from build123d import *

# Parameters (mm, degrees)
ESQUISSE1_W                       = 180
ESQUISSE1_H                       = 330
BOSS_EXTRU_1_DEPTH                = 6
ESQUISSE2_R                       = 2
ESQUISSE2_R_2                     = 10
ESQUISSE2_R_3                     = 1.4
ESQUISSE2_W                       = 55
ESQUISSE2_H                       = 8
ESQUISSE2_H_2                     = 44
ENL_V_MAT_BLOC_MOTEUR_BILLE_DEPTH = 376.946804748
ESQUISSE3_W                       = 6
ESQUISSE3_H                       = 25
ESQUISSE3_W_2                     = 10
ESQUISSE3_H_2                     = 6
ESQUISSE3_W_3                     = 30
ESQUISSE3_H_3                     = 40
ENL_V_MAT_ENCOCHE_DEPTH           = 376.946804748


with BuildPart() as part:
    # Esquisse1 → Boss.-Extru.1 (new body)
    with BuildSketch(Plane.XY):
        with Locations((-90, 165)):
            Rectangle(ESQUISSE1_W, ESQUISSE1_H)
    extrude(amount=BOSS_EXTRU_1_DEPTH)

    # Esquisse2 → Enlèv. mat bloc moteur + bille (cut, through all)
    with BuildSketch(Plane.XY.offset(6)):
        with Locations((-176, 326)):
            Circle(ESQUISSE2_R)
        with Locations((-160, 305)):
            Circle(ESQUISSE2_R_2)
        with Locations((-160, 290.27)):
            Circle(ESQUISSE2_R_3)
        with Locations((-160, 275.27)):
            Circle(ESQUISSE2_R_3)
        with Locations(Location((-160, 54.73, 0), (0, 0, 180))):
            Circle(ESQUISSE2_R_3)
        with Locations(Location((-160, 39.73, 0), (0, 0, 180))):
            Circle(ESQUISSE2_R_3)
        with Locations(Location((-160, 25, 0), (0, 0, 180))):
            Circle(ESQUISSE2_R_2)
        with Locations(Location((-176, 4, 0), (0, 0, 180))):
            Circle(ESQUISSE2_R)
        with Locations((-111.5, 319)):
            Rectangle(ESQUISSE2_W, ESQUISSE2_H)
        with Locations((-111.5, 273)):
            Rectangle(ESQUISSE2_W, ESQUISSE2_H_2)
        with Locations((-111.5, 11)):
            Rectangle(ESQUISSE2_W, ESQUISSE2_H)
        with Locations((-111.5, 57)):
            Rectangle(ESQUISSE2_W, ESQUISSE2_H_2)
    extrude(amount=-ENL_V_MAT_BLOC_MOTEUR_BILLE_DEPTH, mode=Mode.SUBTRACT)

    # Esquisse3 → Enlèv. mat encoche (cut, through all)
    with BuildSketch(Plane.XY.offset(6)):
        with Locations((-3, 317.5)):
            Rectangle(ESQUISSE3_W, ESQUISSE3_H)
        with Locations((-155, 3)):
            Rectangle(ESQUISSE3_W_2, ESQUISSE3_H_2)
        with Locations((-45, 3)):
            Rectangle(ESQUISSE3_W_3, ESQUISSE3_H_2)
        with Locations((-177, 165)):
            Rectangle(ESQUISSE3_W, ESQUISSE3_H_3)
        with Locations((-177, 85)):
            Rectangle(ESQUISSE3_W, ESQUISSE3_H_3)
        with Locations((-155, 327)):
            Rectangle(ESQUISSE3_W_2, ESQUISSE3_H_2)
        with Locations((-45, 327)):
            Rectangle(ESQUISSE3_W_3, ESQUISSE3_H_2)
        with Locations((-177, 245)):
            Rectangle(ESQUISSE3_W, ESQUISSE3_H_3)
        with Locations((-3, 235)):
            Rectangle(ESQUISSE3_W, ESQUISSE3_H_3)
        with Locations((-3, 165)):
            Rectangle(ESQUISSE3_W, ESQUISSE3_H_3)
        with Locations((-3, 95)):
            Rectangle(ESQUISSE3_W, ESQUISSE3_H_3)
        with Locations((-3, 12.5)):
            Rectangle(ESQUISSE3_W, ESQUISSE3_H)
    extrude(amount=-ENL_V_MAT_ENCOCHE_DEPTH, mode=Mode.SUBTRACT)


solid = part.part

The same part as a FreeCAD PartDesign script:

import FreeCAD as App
import Part
import Sketcher


def add_polygon(sketch, points):
    """Adds a closed chain of lines whose ends are joined by coincident constraints."""
    first, n = sketch.GeometryCount, len(points)
    for a, b in zip(points, points[1:] + points[:1]):
        sketch.addGeometry(Part.LineSegment(App.Vector(*a, 0), App.Vector(*b, 0)), False)
    for i in range(n):
        sketch.addConstraint(Sketcher.Constraint("Coincident", first + i, 2, first + (i + 1) % n, 1))

doc = App.newDocument("Part")
params = doc.addObject("Spreadsheet::Sheet", "Params")
for row, (alias, value) in enumerate([
    ("sketch1_width", "180 mm"),
    ("sketch1_height", "330 mm"),
    ("pad1_length", "6 mm"),
    ("sketch2_diameter", "4 mm"),
    ("sketch2_diameter2", "20 mm"),
    ("sketch2_diameter3", "2.8 mm"),
    ("sketch2_width", "55 mm"),
    ("sketch2_height", "8 mm"),
    ("sketch3_width", "6 mm"),
    ("sketch3_width2", "10 mm"),
    ("sketch3_width3", "30 mm"),
    ("sketch3_height", "25 mm"),
    ("sketch3_height2", "40 mm"),
], start=1):
    params.set(f"A{row}", alias)
    params.set(f"B{row}", "=" + value)
    params.setAlias(f"B{row}", alias)

body = doc.addObject("PartDesign::Body", "Body")

# Sketch on XY plane
sketch1 = body.newObject("Sketcher::SketchObject", "Sketch")
sketch1.AttachmentSupport = (doc.getObject("XY_Plane"), [""])
sketch1.MapMode = "FlatFace"
add_polygon(sketch1, [(-180, 330), (-180, 0), (0, 0), (0, 330)])  # lines 0-3
sketch1.addConstraint([
    Sketcher.Constraint("Vertical", 0),
    Sketcher.Constraint("Horizontal", 1),
    Sketcher.Constraint("Vertical", 2),
    Sketcher.Constraint("Horizontal", 3),
    Sketcher.Constraint("Coincident", 1, 2, -1, 1),
    Sketcher.Constraint("DistanceX", 1, 1, 1, 2, 180.0),
    Sketcher.Constraint("DistanceY", 0, 2, 0, 1, 330.0),
])
sketch1.setExpression("Constraints[9]", "Params.sketch1_width")
sketch1.setExpression("Constraints[10]", "Params.sketch1_height")
pad1 = body.newObject("PartDesign::Pad", "Pad")
pad1.Profile = sketch1
pad1.setExpression("Length", "Params.pad1_length")

# Sketch on XY plane
sketch2 = body.newObject("Sketcher::SketchObject", "Sketch001")
sketch2.AttachmentSupport = (doc.getObject("XY_Plane"), [""])
sketch2.MapMode = "FlatFace"
sketch2.AttachmentOffset = App.Placement(App.Vector(0, 0, 6), App.Rotation())
sketch2.addGeometry(Part.Circle(App.Vector(-176, 326, 0), App.Vector(0, 0, 1), 2), False)  # 0
sketch2.addGeometry(Part.Circle(App.Vector(-160, 305, 0), App.Vector(0, 0, 1), 10), False)  # 1
sketch2.addGeometry(Part.Circle(App.Vector(-160, 290.27, 0), App.Vector(0, 0, 1), 1.4), False)  # 2
sketch2.addGeometry(Part.Circle(App.Vector(-160, 275.27, 0), App.Vector(0, 0, 1), 1.4), False)  # 3
sketch2.addGeometry(Part.Circle(App.Vector(-160, 54.73, 0), App.Vector(0, 0, 1), 1.4), False)  # 4
sketch2.addGeometry(Part.Circle(App.Vector(-160, 39.73, 0), App.Vector(0, 0, 1), 1.4), False)  # 5
sketch2.addGeometry(Part.Circle(App.Vector(-160, 25, 0), App.Vector(0, 0, 1), 10), False)  # 6
sketch2.addGeometry(Part.Circle(App.Vector(-176, 4, 0), App.Vector(0, 0, 1), 2), False)  # 7
add_polygon(sketch2, [(-139, 323), (-139, 315), (-84, 315), (-84, 323)])  # lines 8-11
add_polygon(sketch2, [(-139, 295), (-139, 251), (-84, 251), (-84, 295)])  # lines 12-15
add_polygon(sketch2, [(-139, 15), (-139, 7), (-84, 7), (-84, 15)])  # lines 16-19
add_polygon(sketch2, [(-139, 79), (-139, 35), (-84, 35), (-84, 79)])  # lines 20-23
sketch2.addConstraint([
    Sketcher.Constraint("Vertical", 8),
    Sketcher.Constraint("Horizontal", 9),
    Sketcher.Constraint("Vertical", 10),
    Sketcher.Constraint("Horizontal", 11),
    Sketcher.Constraint("Vertical", 12),
    Sketcher.Constraint("Horizontal", 13),
    Sketcher.Constraint("Vertical", 14),
    Sketcher.Constraint("Horizontal", 15),
    Sketcher.Constraint("Vertical", 16),
    Sketcher.Constraint("Horizontal", 17),
    Sketcher.Constraint("Vertical", 18),
    Sketcher.Constraint("Horizontal", 19),
    Sketcher.Constraint("Vertical", 20),
    Sketcher.Constraint("Horizontal", 21),
    Sketcher.Constraint("Vertical", 22),
    Sketcher.Constraint("Horizontal", 23),
    Sketcher.Constraint("Equal", 2, 3),
    Sketcher.Constraint("Equal", 3, 4),
    Sketcher.Constraint("Equal", 4, 5),
    Sketcher.Constraint("Equal", 1, 6),
    Sketcher.Constraint("Equal", 0, 7),
    Sketcher.Constraint("Vertical", 1, 3, 2, 3),
    Sketcher.Constraint("Vertical", 2, 3, 3, 3),
    Sketcher.Constraint("Vertical", 3, 3, 4, 3),
    Sketcher.Constraint("Vertical", 4, 3, 5, 3),
    Sketcher.Constraint("Vertical", 5, 3, 6, 3),
    Sketcher.Constraint("Vertical", 0, 3, 7, 3),
    Sketcher.Constraint("Vertical", 11, 2, 12, 2),
    Sketcher.Constraint("Vertical", 10, 2, 13, 2),
    Sketcher.Constraint("Vertical", 15, 2, 16, 2),
    Sketcher.Constraint("Vertical", 14, 2, 17, 2),
    Sketcher.Constraint("Vertical", 19, 2, 20, 2),
    Sketcher.Constraint("Vertical", 18, 2, 21, 2),
    Sketcher.Constraint("Equal", 10, 16),
    Sketcher.Constraint("Equal", 14, 20),
    Sketcher.Constraint("Diameter", 0, 4.0),
    Sketcher.Constraint("Diameter", 1, 20.0),
    Sketcher.Constraint("Diameter", 2, 2.8),
    Sketcher.Constraint("DistanceX", 9, 1, 9, 2, 55.0),
    Sketcher.Constraint("DistanceY", 8, 2, 8, 1, 8.0),
    Sketcher.Constraint("DistanceY", 12, 2, 12, 1, 44.0),
    Sketcher.Constraint("DistanceX", 0, 3, -1, 1, 176.0),
    Sketcher.Constraint("DistanceY", -1, 1, 0, 3, 326.0),
    Sketcher.Constraint("DistanceX", 1, 3, -1, 1, 160.0),
    Sketcher.Constraint("DistanceY", -1, 1, 1, 3, 305.0),
    Sketcher.Constraint("DistanceY", -1, 1, 6, 3, 25.0),
    Sketcher.Constraint("DistanceY", -1, 1, 7, 3, 4.0),
    Sketcher.Constraint("DistanceX", 8, 2, -1, 1, 139.0),
    Sketcher.Constraint("DistanceY", -1, 1, 8, 2, 315.0),
    Sketcher.Constraint("DistanceY", -1, 1, 12, 2, 251.0),
    Sketcher.Constraint("DistanceY", -1, 1, 16, 2, 7.0),
    Sketcher.Constraint("DistanceY", -1, 1, 20, 2, 35.0),
    Sketcher.Constraint("DistanceY", 3, 3, 2, 3, 15.0),
    Sketcher.Constraint("DistanceY", 5, 3, 4, 3, 15.0),
    Sketcher.Constraint("DistanceY", -1, 1, 2, 3, 290.27),
    Sketcher.Constraint("DistanceY", -1, 1, 4, 3, 54.73),
])
sketch2.setExpression("Constraints[51]", "Params.sketch2_diameter")
sketch2.setExpression("Constraints[52]", "Params.sketch2_diameter2")
sketch2.setExpression("Constraints[53]", "Params.sketch2_diameter3")
sketch2.setExpression("Constraints[54]", "Params.sketch2_width")
sketch2.setExpression("Constraints[55]", "Params.sketch2_height")
pocket1 = body.newObject("PartDesign::Pocket", "Pocket")
pocket1.Profile = sketch2
pocket1.Type = "ThroughAll"

# Sketch on XY plane
sketch3 = body.newObject("Sketcher::SketchObject", "Sketch002")
sketch3.AttachmentSupport = (doc.getObject("XY_Plane"), [""])
sketch3.MapMode = "FlatFace"
sketch3.AttachmentOffset = App.Placement(App.Vector(0, 0, 6), App.Rotation())
add_polygon(sketch3, [(-6, 330), (-6, 305), (0, 305), (0, 330)])  # lines 0-3
add_polygon(sketch3, [(-160, 6), (-160, 0), (-150, 0), (-150, 6)])  # lines 4-7
add_polygon(sketch3, [(-60, 6), (-60, 0), (-30, 0), (-30, 6)])  # lines 8-11
add_polygon(sketch3, [(-180, 185), (-180, 145), (-174, 145), (-174, 185)])  # lines 12-15
add_polygon(sketch3, [(-180, 105), (-180, 65), (-174, 65), (-174, 105)])  # lines 16-19
add_polygon(sketch3, [(-160, 330), (-160, 324), (-150, 324), (-150, 330)])  # lines 20-23
add_polygon(sketch3, [(-60, 330), (-60, 324), (-30, 324), (-30, 330)])  # lines 24-27
add_polygon(sketch3, [(-180, 265), (-180, 225), (-174, 225), (-174, 265)])  # lines 28-31
add_polygon(sketch3, [(-6, 255), (-6, 215), (0, 215), (0, 255)])  # lines 32-35
add_polygon(sketch3, [(-6, 185), (-6, 145), (0, 145), (0, 185)])  # lines 36-39
add_polygon(sketch3, [(-6, 115), (-6, 75), (0, 75), (0, 115)])  # lines 40-43
add_polygon(sketch3, [(-6, 25), (-6, 0), (0, 0), (0, 25)])  # lines 44-47
sketch3.addConstraint([
    Sketcher.Constraint("Vertical", 0),
    Sketcher.Constraint("Horizontal", 1),
    Sketcher.Constraint("Vertical", 2),
    Sketcher.Constraint("Horizontal", 3),
    Sketcher.Constraint("Vertical", 4),
    Sketcher.Constraint("Horizontal", 5),
    Sketcher.Constraint("Vertical", 6),
    Sketcher.Constraint("Horizontal", 7),
    Sketcher.Constraint("Vertical", 8),
    Sketcher.Constraint("Horizontal", 9),
    Sketcher.Constraint("Vertical", 10),
    Sketcher.Constraint("Horizontal", 11),
    Sketcher.Constraint("Vertical", 12),
    Sketcher.Constraint("Horizontal", 13),
    Sketcher.Constraint("Vertical", 14),
    Sketcher.Constraint("Horizontal", 15),
    Sketcher.Constraint("Vertical", 16),
    Sketcher.Constraint("Horizontal", 17),
    Sketcher.Constraint("Vertical", 18),
    Sketcher.Constraint("Horizontal", 19),
    Sketcher.Constraint("Vertical", 20),
    Sketcher.Constraint("Horizontal", 21),
    Sketcher.Constraint("Vertical", 22),
    Sketcher.Constraint("Horizontal", 23),
    Sketcher.Constraint("Vertical", 24),
    Sketcher.Constraint("Horizontal", 25),
    Sketcher.Constraint("Vertical", 26),
    Sketcher.Constraint("Horizontal", 27),
    Sketcher.Constraint("Vertical", 28),
    Sketcher.Constraint("Horizontal", 29),
    Sketcher.Constraint("Vertical", 30),
    Sketcher.Constraint("Horizontal", 31),
    Sketcher.Constraint("Vertical", 32),
    Sketcher.Constraint("Horizontal", 33),
    Sketcher.Constraint("Vertical", 34),
    Sketcher.Constraint("Horizontal", 35),
    Sketcher.Constraint("Vertical", 36),
    Sketcher.Constraint("Horizontal", 37),
    Sketcher.Constraint("Vertical", 38),
    Sketcher.Constraint("Horizontal", 39),
    Sketcher.Constraint("Vertical", 40),
    Sketcher.Constraint("Horizontal", 41),
    Sketcher.Constraint("Vertical", 42),
    Sketcher.Constraint("Horizontal", 43),
    Sketcher.Constraint("Vertical", 44),
    Sketcher.Constraint("Horizontal", 45),
    Sketcher.Constraint("Vertical", 46),
    Sketcher.Constraint("Horizontal", 47),
    Sketcher.Constraint("Coincident", 45, 2, -1, 1),
    Sketcher.Constraint("PointOnObject", 1, 2, -2),
    Sketcher.Constraint("PointOnObject", 4, 2, -1),
    Sketcher.Constraint("PointOnObject", 8, 2, -1),
    Sketcher.Constraint("PointOnObject", 33, 2, -2),
    Sketcher.Constraint("PointOnObject", 37, 2, -2),
    Sketcher.Constraint("PointOnObject", 41, 2, -2),
    Sketcher.Constraint("Horizontal", 7, 2, 10, 2),
    Sketcher.Constraint("Horizontal", 3, 2, 22, 2),
    Sketcher.Constraint("Horizontal", 21, 2, 24, 2),
    Sketcher.Constraint("Horizontal", 23, 2, 26, 2),
    Sketcher.Constraint("Horizontal", 13, 2, 36, 2),
    Sketcher.Constraint("Horizontal", 15, 2, 38, 2),
    Sketcher.Constraint("Vertical", 15, 2, 16, 2),
    Sketcher.Constraint("Vertical", 14, 2, 17, 2),
    Sketcher.Constraint("Vertical", 7, 2, 20, 2),
    Sketcher.Constraint("Vertical", 6, 2, 21, 2),
    Sketcher.Constraint("Vertical", 11, 2, 24, 2),
    Sketcher.Constraint("Vertical", 10, 2, 25, 2),
    Sketcher.Constraint("Vertical", 19, 2, 28, 2),
    Sketcher.Constraint("Vertical", 18, 2, 29, 2),
    Sketcher.Constraint("Vertical", 3, 2, 32, 2),
    Sketcher.Constraint("Vertical", 35, 2, 36, 2),
    Sketcher.Constraint("Vertical", 39, 2, 40, 2),
    Sketcher.Constraint("Vertical", 43, 2, 44, 2),
    Sketcher.Constraint("Equal", 3, 13),
    Sketcher.Constraint("Equal", 47, 4),
    Sketcher.Constraint("Equal", 14, 16),
    Sketcher.Constraint("Equal", 10, 20),
    Sketcher.Constraint("Equal", 18, 28),
    Sketcher.Constraint("Equal", 30, 32),
    Sketcher.Constraint("Equal", 38, 40),
    Sketcher.Constraint("Equal", 2, 44),
    Sketcher.Constraint("DistanceX", 1, 1, 1, 2, 6.0),
    Sketcher.Constraint("DistanceX", 5, 1, 5, 2, 10.0),
    Sketcher.Constraint("DistanceX", 9, 1, 9, 2, 30.0),
    Sketcher.Constraint("DistanceY", 0, 2, 0, 1, 25.0),
    Sketcher.Constraint("DistanceY", 12, 2, 12, 1, 40.0),
    Sketcher.Constraint("DistanceY", -1, 1, 0, 2, 305.0),
    Sketcher.Constraint("DistanceX", 4, 2, -1, 1, 160.0),
    Sketcher.Constraint("DistanceX", 8, 2, -1, 1, 60.0),
    Sketcher.Constraint("DistanceX", 12, 2, -1, 1, 180.0),
    Sketcher.Constraint("DistanceY", -1, 1, 12, 2, 145.0),
    Sketcher.Constraint("DistanceY", -1, 1, 16, 2, 65.0),
    Sketcher.Constraint("DistanceY", -1, 1, 28, 2, 225.0),
    Sketcher.Constraint("DistanceY", -1, 1, 32, 2, 215.0),
    Sketcher.Constraint("DistanceY", -1, 1, 40, 2, 75.0),
])
sketch3.setExpression("Constraints[129]", "Params.sketch3_width")
sketch3.setExpression("Constraints[130]", "Params.sketch3_width2")
sketch3.setExpression("Constraints[131]", "Params.sketch3_width3")
sketch3.setExpression("Constraints[132]", "Params.sketch3_height")
sketch3.setExpression("Constraints[133]", "Params.sketch3_height2")
pocket2 = body.newObject("PartDesign::Pocket", "Pocket001")
pocket2.Profile = sketch3
pocket2.Type = "ThroughAll"

doc.recompute()
